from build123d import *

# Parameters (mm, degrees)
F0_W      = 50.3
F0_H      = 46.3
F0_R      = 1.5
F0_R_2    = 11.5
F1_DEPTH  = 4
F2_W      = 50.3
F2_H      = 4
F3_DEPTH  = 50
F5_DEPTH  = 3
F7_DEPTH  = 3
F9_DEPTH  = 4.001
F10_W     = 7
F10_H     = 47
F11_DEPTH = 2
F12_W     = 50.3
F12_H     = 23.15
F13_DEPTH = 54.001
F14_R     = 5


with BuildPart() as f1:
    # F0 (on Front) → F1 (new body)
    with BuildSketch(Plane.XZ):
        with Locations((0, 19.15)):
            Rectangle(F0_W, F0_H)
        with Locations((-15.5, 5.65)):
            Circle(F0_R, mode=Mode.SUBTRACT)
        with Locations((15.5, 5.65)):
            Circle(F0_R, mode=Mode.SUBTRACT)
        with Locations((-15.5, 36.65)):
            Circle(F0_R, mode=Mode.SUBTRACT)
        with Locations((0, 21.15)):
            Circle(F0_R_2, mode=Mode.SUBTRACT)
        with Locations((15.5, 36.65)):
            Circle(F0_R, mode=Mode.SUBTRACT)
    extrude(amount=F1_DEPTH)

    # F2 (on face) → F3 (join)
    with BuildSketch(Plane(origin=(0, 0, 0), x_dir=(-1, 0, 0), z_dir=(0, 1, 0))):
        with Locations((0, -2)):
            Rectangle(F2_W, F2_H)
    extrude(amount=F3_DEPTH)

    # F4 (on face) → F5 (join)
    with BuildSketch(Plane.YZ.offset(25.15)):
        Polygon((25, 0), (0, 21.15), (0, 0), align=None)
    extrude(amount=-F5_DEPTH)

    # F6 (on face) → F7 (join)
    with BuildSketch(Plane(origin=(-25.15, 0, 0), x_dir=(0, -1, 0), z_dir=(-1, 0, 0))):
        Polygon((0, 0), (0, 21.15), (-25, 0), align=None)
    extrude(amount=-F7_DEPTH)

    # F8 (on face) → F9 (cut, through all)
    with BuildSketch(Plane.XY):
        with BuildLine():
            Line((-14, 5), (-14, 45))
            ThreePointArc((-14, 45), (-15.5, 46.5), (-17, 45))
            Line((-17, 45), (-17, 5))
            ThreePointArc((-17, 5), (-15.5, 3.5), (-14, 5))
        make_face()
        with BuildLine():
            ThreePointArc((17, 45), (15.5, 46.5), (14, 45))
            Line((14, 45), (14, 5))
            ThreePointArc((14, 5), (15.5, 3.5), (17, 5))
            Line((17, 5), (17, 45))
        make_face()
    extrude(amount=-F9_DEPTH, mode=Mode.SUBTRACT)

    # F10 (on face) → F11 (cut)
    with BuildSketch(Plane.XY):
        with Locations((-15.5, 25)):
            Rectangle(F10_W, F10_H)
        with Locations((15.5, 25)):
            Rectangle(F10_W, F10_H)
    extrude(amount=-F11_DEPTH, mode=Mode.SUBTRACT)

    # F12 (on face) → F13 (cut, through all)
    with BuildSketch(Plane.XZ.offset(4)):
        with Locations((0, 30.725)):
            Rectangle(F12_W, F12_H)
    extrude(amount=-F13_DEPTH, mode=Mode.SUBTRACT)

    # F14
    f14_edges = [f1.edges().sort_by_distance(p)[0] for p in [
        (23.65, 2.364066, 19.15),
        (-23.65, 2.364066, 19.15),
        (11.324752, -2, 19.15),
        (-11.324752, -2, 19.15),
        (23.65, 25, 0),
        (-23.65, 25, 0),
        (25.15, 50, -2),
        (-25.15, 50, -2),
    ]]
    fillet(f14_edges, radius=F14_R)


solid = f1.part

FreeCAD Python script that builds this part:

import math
import FreeCAD as App
import Part
import Sketcher

V = App.Vector


def edges_at(feature, points):
    """Names of the edges that pass closest to the given points."""
    edges = feature.Shape.Edges
    near = lambda p: min(range(len(edges)), key=lambda i: edges[i].distToShape(Part.Vertex(*p))[0])
    return sorted({f"Edge{near(p) + 1}" for p in points})

doc = App.newDocument("Part")
params = doc.addObject("Spreadsheet::Sheet", "Params")
for row, (alias, value) in enumerate([
    ("sketch1_diameter", "3 mm"),
    ("sketch1_diameter2", "23 mm"),
    ("sketch1_width", "50.3 mm"),
    ("sketch1_height", "46.3 mm"),
    ("pad1_length", "4 mm"),
    ("sketch2_height", "4 mm"),
    ("sketch2_width", "50.3 mm"),
    ("pad2_length", "50 mm"),
    ("sketch3_width", "25 mm"),
    ("sketch3_height", "21.15 mm"),
    ("pad3_length", "3 mm"),
    ("sketch4_width", "25 mm"),
    ("sketch4_height", "21.15 mm"),
    ("pad4_length", "3 mm"),
    ("sketch5_radius", "1.5 mm"),
    ("sketch5_height", "40 mm"),
    ("sketch6_width", "7 mm"),
    ("sketch6_height", "47 mm"),
    ("pocket2_length", "2 mm"),
    ("sketch7_width", "50.3 mm"),
    ("sketch7_height", "23.15 mm"),
    ("fillet_radius", "5 mm"),
], start=1):
    params.set(f"A{row}", alias)
    params.set(f"B{row}", "=" + value)
    params.setAlias(f"B{row}", alias)

body = doc.addObject("PartDesign::Body", "Body")

# Sketch on XZ plane
sketch1 = body.newObject("Sketcher::SketchObject", "Sketch")
sketch1.AttachmentSupport = (doc.getObject("XZ_Plane"), [""])
sketch1.MapMode = "FlatFace"
sketch1.addGeometry(Part.LineSegment(V(-25.1, 42.3, 0), V(-25.1, -4, 0)), False)
sketch1.addGeometry(Part.LineSegment(V(-25.1, -4, 0), V(25.1, -4, 0)), False)
sketch1.addGeometry(Part.LineSegment(V(25.1, -4, 0), V(25.1, 42.3, 0)), False)
sketch1.addGeometry(Part.LineSegment(V(25.1, 42.3, 0), V(-25.1, 42.3, 0)), False)
sketch1.addGeometry(Part.Circle(V(-15.5, 5.7, 0), V(0, 0, 1), 1.5), False)
sketch1.addGeometry(Part.Circle(V(15.5, 5.7, 0), V(0, 0, 1), 1.5), False)
sketch1.addGeometry(Part.Circle(V(-15.5, 36.6, 0), V(0, 0, 1), 1.5), False)
sketch1.addGeometry(Part.Circle(V(0, 21.1, 0), V(0, 0, 1), 11.5), False)
sketch1.addGeometry(Part.Circle(V(15.5, 36.6, 0), V(0, 0, 1), 1.5), False)
sketch1.addConstraint(Sketcher.Constraint("Coincident", 0, 2, 1, 1))
sketch1.addConstraint(Sketcher.Constraint("Coincident", 1, 2, 2, 1))
sketch1.addConstraint(Sketcher.Constraint("Coincident", 2, 2, 3, 1))
sketch1.addConstraint(Sketcher.Constraint("Coincident", 3, 2, 0, 1))
sketch1.addConstraint(Sketcher.Constraint("Vertical", 0))
sketch1.addConstraint(Sketcher.Constraint("Horizontal", 1))
sketch1.addConstraint(Sketcher.Constraint("Vertical", 2))
sketch1.addConstraint(Sketcher.Constraint("Horizontal", 3))
sketch1.addConstraint(Sketcher.Constraint("Equal", 4, 5))
sketch1.addConstraint(Sketcher.Constraint("Equal", 5, 6))
sketch1.addConstraint(Sketcher.Constraint("Equal", 6, 8))
sketch1.addConstraint(Sketcher.Constraint("Symmetric", 4, 3, 5, 3, -2))
sketch1.addConstraint(Sketcher.Constraint("Symmetric", 6, 3, 8, 3, -2))
sketch1.addConstraint(Sketcher.Constraint("PointOnObject", 7, 3, -2))
sketch1.addConstraint(Sketcher.Constraint("Vertical", 4, 3, 6, 3))
sketch1.addConstraint(Sketcher.Constraint("Diameter", 4, 3.0))
sketch1.addConstraint(Sketcher.Constraint("Diameter", 7, 23.0))
sketch1.addConstraint(Sketcher.Constraint("DistanceX", 1, 1, 1, 2, 50.3))
sketch1.addConstraint(Sketcher.Constraint("DistanceY", 0, 2, 0, 1, 46.3))
sketch1.addConstraint(Sketcher.Constraint("DistanceY", 0, 2, -1, 1, 4.0))
sketch1.addConstraint(Sketcher.Constraint("DistanceX", 4, 3, 5, 3, 31.0))
sketch1.addConstraint(Sketcher.Constraint("DistanceY", 4, 3, 6, 3, 31.0))
sketch1.addConstraint(Sketcher.Constraint("DistanceY", 4, 3, 7, 3, 15.5))
sketch1.addConstraint(Sketcher.Constraint("DistanceY", -1, 1, 4, 3, 5.65))
sketch1.addConstraint(Sketcher.Constraint("DistanceX", 0, 2, -1, 1, 25.15))
sketch1.setExpression("Constraints[15]", "Params.sketch1_diameter")
sketch1.setExpression("Constraints[16]", "Params.sketch1_diameter2")
sketch1.setExpression("Constraints[17]", "Params.sketch1_width")
sketch1.setExpression("Constraints[18]", "Params.sketch1_height")
pad1 = body.newObject("PartDesign::Pad", "Pad")
pad1.Profile = sketch1
pad1.setExpression("Length", "Params.pad1_length")

# Sketch on XZ plane
sketch2 = body.newObject("Sketcher::SketchObject", "Sketch001")
sketch2.AttachmentSupport = (doc.getObject("XZ_Plane"), [""])
sketch2.MapMode = "FlatFace"
sketch2.addGeometry(Part.LineSegment(V(25.1, 0, 0), V(25.1, -4, 0)), False)
sketch2.addGeometry(Part.LineSegment(V(25.1, -4, 0), V(-25.1, -4, 0)), False)
sketch2.addGeometry(Part.LineSegment(V(-25.1, -4, 0), V(-25.1, 0, 0)), False)
sketch2.addGeometry(Part.LineSegment(V(-25.1, 0, 0), V(25.1, 0, 0)), False)
sketch2.addConstraint(Sketcher.Constraint("Coincident", 0, 2, 1, 1))
sketch2.addConstraint(Sketcher.Constraint("Coincident", 1, 2, 2, 1))
sketch2.addConstraint(Sketcher.Constraint("Coincident", 2, 2, 3, 1))
sketch2.addConstraint(Sketcher.Constraint("Coincident", 3, 2, 0, 1))
sketch2.addConstraint(Sketcher.Constraint("Vertical", 0))
sketch2.addConstraint(Sketcher.Constraint("Horizontal", 1))
sketch2.addConstraint(Sketcher.Constraint("Vertical", 2))
sketch2.addConstraint(Sketcher.Constraint("Horizontal", 3))
sketch2.addConstraint(Sketcher.Constraint("Symmetric", 2, 2, 3, 2, -1, 1))
sketch2.addConstraint(Sketcher.Constraint("DistanceY", 0, 2, 0, 1, 4.0))
sketch2.addConstraint(Sketcher.Constraint("DistanceX", 1, 2, 1, 1, 50.3))
sketch2.setExpression("Constraints[9]", "Params.sketch2_height")
sketch2.setExpression("Constraints[10]", "Params.sketch2_width")
pad2 = body.newObject("PartDesign::Pad", "Pad001")
pad2.Profile = sketch2
pad2.setExpression("Length", "Params.pad2_length")
pad2.Reversed = True

# Sketch on YZ plane
sketch3 = body.newObject("Sketcher::SketchObject", "Sketch002")
sketch3.AttachmentSupport = (doc.getObject("YZ_Plane"), [""])
sketch3.MapMode = "FlatFace"
sketch3.AttachmentOffset = App.Placement(V(0, 0, 25.15), App.Rotation())
sketch3.addGeometry(Part.LineSegment(V(25, 0, 0), V(0, 21, 0)), False)
sketch3.addGeometry(Part.LineSegment(V(0, 21, 0), V(0, 0, 0)), False)
sketch3.addGeometry(Part.LineSegment(V(0, 0, 0), V(25, 0, 0)), False)
sketch3.addConstraint(Sketcher.Constraint("Coincident", 0, 2, 1, 1))
sketch3.addConstraint(Sketcher.Constraint("Coincident", 1, 2, 2, 1))
sketch3.addConstraint(Sketcher.Constraint("Coincident", 2, 2, 0, 1))
sketch3.addConstraint(Sketcher.Constraint("Vertical", 1))
sketch3.addConstraint(Sketcher.Constraint("Horizontal", 2))
sketch3.addConstraint(Sketcher.Constraint("Coincident", 1, 2, -1, 1))
sketch3.addConstraint(Sketcher.Constraint("DistanceX", 2, 1, 2, 2, 25.0))
sketch3.addConstraint(Sketcher.Constraint("DistanceY", 1, 2, 1, 1, 21.15))
sketch3.setExpression("Constraints[6]", "Params.sketch3_width")
sketch3.setExpression("Constraints[7]", "Params.sketch3_height")
pad3 = body.newObject("PartDesign::Pad", "Pad002")
pad3.Profile = sketch3
pad3.setExpression("Length", "Params.pad3_length")
pad3.Reversed = True

# Sketch on YZ plane
sketch4 = body.newObject("Sketcher::SketchObject", "Sketch003")
sketch4.AttachmentSupport = (doc.getObject("YZ_Plane"), [""])
sketch4.MapMode = "FlatFace"
sketch4.AttachmentOffset = App.Placement(V(0, 0, -25.15), App.Rotation())
sketch4.addGeometry(Part.LineSegment(V(0, 0, 0), V(0, 21, 0)), False)
sketch4.addGeometry(Part.LineSegment(V(0, 21, 0), V(25, 0, 0)), False)
sketch4.addGeometry(Part.LineSegment(V(25, 0, 0), V(0, 0, 0)), False)
sketch4.addConstraint(Sketcher.Constraint("Coincident", 0, 2, 1, 1))
sketch4.addConstraint(Sketcher.Constraint("Coincident", 1, 2, 2, 1))
sketch4.addConstraint(Sketcher.Constraint("Coincident", 2, 2, 0, 1))
sketch4.addConstraint(Sketcher.Constraint("Vertical", 0))
sketch4.addConstraint(Sketcher.Constraint("Horizontal", 2))
sketch4.addConstraint(Sketcher.Constraint("Coincident", 2, 2, -1, 1))
sketch4.addConstraint(Sketcher.Constraint("DistanceX", 2, 2, 2, 1, 25.0))
sketch4.addConstraint(Sketcher.Constraint("DistanceY", 0, 1, 0, 2, 21.15))
sketch4.setExpression("Constraints[6]", "Params.sketch4_width")
sketch4.setExpression("Constraints[7]", "Params.sketch4_height")
pad4 = body.newObject("PartDesign::Pad", "Pad003")
pad4.Profile = sketch4
pad4.setExpression("Length", "Params.pad4_length")

# Sketch on XY plane
sketch5 = body.newObject("Sketcher::SketchObject", "Sketch004")
sketch5.AttachmentSupport = (doc.getObject("XY_Plane"), [""])
sketch5.MapMode = "FlatFace"
sketch5.addGeometry(Part.LineSegment(V(-14, 5, 0), V(-14, 45, 0)), False)
sketch5.addGeometry(Part.ArcOfCircle(Part.Circle(V(-15.5, 45, 0), V(0, 0, 1), 1.5), math.radians(0), math.radians(180)), False)
sketch5.addGeometry(Part.LineSegment(V(-17, 45, 0), V(-17, 5, 0)), False)
sketch5.addGeometry(Part.ArcOfCircle(Part.Circle(V(-15.5, 5, 0), V(0, 0, 1), 1.5), math.radians(180), math.radians(360)), False)
sketch5.addGeometry(Part.ArcOfCircle(Part.Circle(V(15.5, 45, 0), V(0, 0, 1), 1.5), math.radians(0), math.radians(180)), False)
sketch5.addGeometry(Part.LineSegment(V(14, 45, 0), V(14, 5, 0)), False)
sketch5.addGeometry(Part.ArcOfCircle(Part.Circle(V(15.5, 5, 0), V(0, 0, 1), 1.5), math.radians(180), math.radians(360)), False)
sketch5.addGeometry(Part.LineSegment(V(17, 5, 0), V(17, 45, 0)), False)
sketch5.addConstraint(Sketcher.Constraint("Tangent", 0, 2, 1, 1))
sketch5.addConstraint(Sketcher.Constraint("Tangent", 1, 2, 2, 1))
sketch5.addConstraint(Sketcher.Constraint("Tangent", 2, 2, 3, 1))
sketch5.addConstraint(Sketcher.Constraint("Tangent", 3, 2, 0, 1))
sketch5.addConstraint(Sketcher.Constraint("Tangent", 4, 2, 5, 1))
sketch5.addConstraint(Sketcher.Constraint("Tangent", 5, 2, 6, 1))
sketch5.addConstraint(Sketcher.Constraint("Tangent", 6, 2, 7, 1))
sketch5.addConstraint(Sketcher.Constraint("Tangent", 7, 2, 4, 1))
sketch5.addConstraint(Sketcher.Constraint("Vertical", 0))
sketch5.addConstraint(Sketcher.Constraint("Vertical", 2))
sketch5.addConstraint(Sketcher.Constraint("Vertical", 5))
sketch5.addConstraint(Sketcher.Constraint("Vertical", 7))
sketch5.addConstraint(Sketcher.Constraint("Equal", 3, 4))
sketch5.addConstraint(Sketcher.Constraint("Symmetric", 1, 3, 4, 3, -2))
sketch5.addConstraint(Sketcher.Constraint("Horizontal", 3, 3, 6, 3))
sketch5.addConstraint(Sketcher.Constraint("Radius", 1, 1.5))
sketch5.addConstraint(Sketcher.Constraint("DistanceY", 0, 1, 0, 2, 40.0))
sketch5.addConstraint(Sketcher.Constraint("DistanceY", -1, 1, 1, 3, 45.0))
sketch5.addConstraint(Sketcher.Constraint("DistanceX", 0, 2, -1, 1, 14.0))
sketch5.setExpression("Constraints[15]", "Params.sketch5_radius")
sketch5.setExpression("Constraints[16]", "Params.sketch5_height")
pocket1 = body.newObject("PartDesign::Pocket", "Pocket")
pocket1.Profile = sketch5
pocket1.Type = "ThroughAll"

# Sketch on XY plane
sketch6 = body.newObject("Sketcher::SketchObject", "Sketch005")
sketch6.AttachmentSupport = (doc.getObject("XY_Plane"), [""])
sketch6.MapMode = "FlatFace"
sketch6.addGeometry(Part.LineSegment(V(-19, 48, 0), V(-19, 2, 0)), False)
sketch6.addGeometry(Part.LineSegment(V(-19, 2, 0), V(-12, 2, 0)), False)
sketch6.addGeometry(Part.LineSegment(V(-12, 2, 0), V(-12, 48, 0)), False)
sketch6.addGeometry(Part.LineSegment(V(-12, 48, 0), V(-19, 48, 0)), False)
sketch6.addGeometry(Part.LineSegment(V(12, 48, 0), V(12, 2, 0)), False)
sketch6.addGeometry(Part.LineSegment(V(12, 2, 0), V(19, 2, 0)), False)
sketch6.addGeometry(Part.LineSegment(V(19, 2, 0), V(19, 48, 0)), False)
sketch6.addGeometry(Part.LineSegment(V(19, 48, 0), V(12, 48, 0)), False)
sketch6.addConstraint(Sketcher.Constraint("Coincident", 0, 2, 1, 1))
sketch6.addConstraint(Sketcher.Constraint("Coincident", 1, 2, 2, 1))
sketch6.addConstraint(Sketcher.Constraint("Coincident", 2, 2, 3, 1))
sketch6.addConstraint(Sketcher.Constraint("Coincident", 3, 2, 0, 1))
sketch6.addConstraint(Sketcher.Constraint("Coincident", 4, 2, 5, 1))
sketch6.addConstraint(Sketcher.Constraint("Coincident", 5, 2, 6, 1))
sketch6.addConstraint(Sketcher.Constraint("Coincident", 6, 2, 7, 1))
sketch6.addConstraint(Sketcher.Constraint("Coincident", 7, 2, 4, 1))
sketch6.addConstraint(Sketcher.Constraint("Vertical", 0))
sketch6.addConstraint(Sketcher.Constraint("Horizontal", 1))
sketch6.addConstraint(Sketcher.Constraint("Vertical", 2))
sketch6.addConstraint(Sketcher.Constraint("Horizontal", 3))
sketch6.addConstraint(Sketcher.Constraint("Vertical", 4))
sketch6.addConstraint(Sketcher.Constraint("Horizontal", 5))
sketch6.addConstraint(Sketcher.Constraint("Vertical", 6))
sketch6.addConstraint(Sketcher.Constraint("Horizontal", 7))
sketch6.addConstraint(Sketcher.Constraint("Symmetric", 1, 2, 4, 2, -2))
sketch6.addConstraint(Sketcher.Constraint("Symmetric", 3, 2, 6, 2, -2))
sketch6.addConstraint(Sketcher.Constraint("DistanceX", 1, 1, 1, 2, 7.0))
sketch6.addConstraint(Sketcher.Constraint("DistanceY", 0, 2, 0, 1, 47.0))
sketch6.addConstraint(Sketcher.Constraint("DistanceX", 0, 2, -1, 1, 19.0))
sketch6.addConstraint(Sketcher.Constraint("DistanceY", -1, 1, 0, 2, 1.5))
sketch6.setExpression("Constraints[18]", "Params.sketch6_width")
sketch6.setExpression("Constraints[19]", "Params.sketch6_height")
pocket2 = body.newObject("PartDesign::Pocket", "Pocket001")
pocket2.Profile = sketch6
pocket2.setExpression("Length", "Params.pocket2_length")

# Sketch on XZ plane
sketch7 = body.newObject("Sketcher::SketchObject", "Sketch006")
sketch7.AttachmentSupport = (doc.getObject("XZ_Plane"), [""])
sketch7.MapMode = "FlatFace"
sketch7.AttachmentOffset = App.Placement(V(0, 0, 4), App.Rotation())
sketch7.addGeometry(Part.LineSegment(V(-25, 42, 0), V(-25, 19, 0)), False)
sketch7.addGeometry(Part.LineSegment(V(-25, 19, 0), V(25, 19, 0)), False)
sketch7.addGeometry(Part.LineSegment(V(25, 19, 0), V(25, 42, 0)), False)
sketch7.addGeometry(Part.LineSegment(V(25, 42, 0), V(-25, 42, 0)), False)
sketch7.addConstraint(Sketcher.Constraint("Coincident", 0, 2, 1, 1))
sketch7.addConstraint(Sketcher.Constraint("Coincident", 1, 2, 2, 1))
sketch7.addConstraint(Sketcher.Constraint("Coincident", 2, 2, 3, 1))
sketch7.addConstraint(Sketcher.Constraint("Coincident", 3, 2, 0, 1))
sketch7.addConstraint(Sketcher.Constraint("Vertical", 0))
sketch7.addConstraint(Sketcher.Constraint("Horizontal", 1))
sketch7.addConstraint(Sketcher.Constraint("Vertical", 2))
sketch7.addConstraint(Sketcher.Constraint("Horizontal", 3))
sketch7.addConstraint(Sketcher.Constraint("DistanceX", 1, 1, 1, 2, 50.3))
sketch7.addConstraint(Sketcher.Constraint("DistanceY", 0, 2, 0, 1, 23.15))
sketch7.addConstraint(Sketcher.Constraint("DistanceY", -1, 1, 2, 2, 42.3))
sketch7.addConstraint(Sketcher.Constraint("DistanceX", 0, 2, -1, 1, 25.15))
sketch7.setExpression("Constraints[8]", "Params.sketch7_width")
sketch7.setExpression("Constraints[9]", "Params.sketch7_height")
pocket3 = body.newObject("PartDesign::Pocket", "Pocket002")
pocket3.Profile = sketch7
pocket3.Type = "ThroughAll"
doc.recompute()

fillet = body.newObject("PartDesign::Fillet", "Fillet")
fillet.Base = (pocket3, edges_at(pocket3, [
    (23.65, 2.364, 19.15),
    (-23.65, 2.364, 19.15),
    (11.325, -2, 19.15),
    (-11.325, -2, 19.15),
    (23.65, 25, 0),
    (-23.65, 25, 0),
    (25.15, 50, -2),
    (-25.15, 50, -2),
]))
fillet.setExpression("Radius", "Params.fillet_radius")

doc.recompute()
